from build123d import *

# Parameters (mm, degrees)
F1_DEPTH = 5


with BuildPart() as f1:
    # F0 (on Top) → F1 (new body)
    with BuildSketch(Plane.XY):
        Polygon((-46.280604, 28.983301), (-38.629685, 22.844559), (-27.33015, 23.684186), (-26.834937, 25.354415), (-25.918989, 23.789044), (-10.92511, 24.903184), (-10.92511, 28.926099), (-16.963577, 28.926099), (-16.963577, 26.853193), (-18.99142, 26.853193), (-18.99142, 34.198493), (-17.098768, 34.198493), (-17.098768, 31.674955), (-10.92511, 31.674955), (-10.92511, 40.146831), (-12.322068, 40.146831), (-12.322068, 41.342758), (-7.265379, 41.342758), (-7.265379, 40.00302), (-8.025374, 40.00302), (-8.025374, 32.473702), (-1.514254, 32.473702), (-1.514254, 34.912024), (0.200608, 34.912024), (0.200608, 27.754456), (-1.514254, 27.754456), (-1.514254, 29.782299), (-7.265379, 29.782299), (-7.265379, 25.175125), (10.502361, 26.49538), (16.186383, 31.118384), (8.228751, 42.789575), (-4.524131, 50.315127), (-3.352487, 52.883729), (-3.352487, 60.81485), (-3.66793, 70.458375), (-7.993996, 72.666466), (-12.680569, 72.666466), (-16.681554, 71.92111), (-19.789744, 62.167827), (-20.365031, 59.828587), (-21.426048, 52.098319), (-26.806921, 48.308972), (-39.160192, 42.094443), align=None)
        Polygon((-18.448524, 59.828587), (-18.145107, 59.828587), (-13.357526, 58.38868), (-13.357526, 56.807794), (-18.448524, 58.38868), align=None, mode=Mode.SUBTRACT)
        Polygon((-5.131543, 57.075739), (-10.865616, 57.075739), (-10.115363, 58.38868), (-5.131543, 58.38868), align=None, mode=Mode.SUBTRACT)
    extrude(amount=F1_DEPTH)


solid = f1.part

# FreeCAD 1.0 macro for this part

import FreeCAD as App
import Part
import Sketcher
from FreeCAD import Vector

doc = App.newDocument("Part")
params = doc.addObject("Spreadsheet::Sheet", "Params")
for row, (alias, value) in enumerate([
    ("pad1_length", "5 mm"),
], start=1):
    params.set(f"A{row}", alias)
    params.set(f"B{row}", "=" + value)
    params.setAlias(f"B{row}", alias)

body = doc.addObject("PartDesign::Body", "Body")

sketch1 = body.newObject("Sketcher::SketchObject", "Sketch")
sketch1.AttachmentSupport = (doc.getObject("XY_Plane"), [""])
sketch1.MapMode = "FlatFace"
sketch1.addGeometry([
    Part.LineSegment(Vector(-46.28, 28.98, 0), Vector(-38.63, 22.84, 0)),
    Part.LineSegment(Vector(-38.63, 22.84, 0), Vector(-27.33, 23.68, 0)),
    Part.LineSegment(Vector(-27.33, 23.68, 0), Vector(-26.83, 25.35, 0)),
    Part.LineSegment(Vector(-26.83, 25.35, 0), Vector(-25.92, 23.79, 0)),
    Part.LineSegment(Vector(-25.92, 23.79, 0), Vector(-10.93, 24.9, 0)),
    Part.LineSegment(Vector(-10.93, 24.9, 0), Vector(-10.93, 28.93, 0)),
    Part.LineSegment(Vector(-10.93, 28.93, 0), Vector(-16.96, 28.93, 0)),
    Part.LineSegment(Vector(-16.96, 28.93, 0), Vector(-16.96, 26.85, 0)),
    Part.LineSegment(Vector(-16.96, 26.85, 0), Vector(-18.99, 26.85, 0)),
    Part.LineSegment(Vector(-18.99, 26.85, 0), Vector(-18.99, 34.2, 0)),
    Part.LineSegment(Vector(-18.99, 34.2, 0), Vector(-17.1, 34.2, 0)),
    Part.LineSegment(Vector(-17.1, 34.2, 0), Vector(-17.1, 31.67, 0)),
    Part.LineSegment(Vector(-17.1, 31.67, 0), Vector(-10.93, 31.67, 0)),
    Part.LineSegment(Vector(-10.93, 31.67, 0), Vector(-10.93, 40.15, 0)),
    Part.LineSegment(Vector(-10.93, 40.15, 0), Vector(-12.32, 40.15, 0)),
    Part.LineSegment(Vector(-12.32, 40.15, 0), Vector(-12.32, 41.34, 0)),
    Part.LineSegment(Vector(-12.32, 41.34, 0), Vector(-7.27, 41.34, 0)),
    Part.LineSegment(Vector(-7.27, 41.34, 0), Vector(-7.27, 40, 0)),
    Part.LineSegment(Vector(-7.27, 40, 0), Vector(-8.03, 40, 0)),
    Part.LineSegment(Vector(-8.03, 40, 0), Vector(-8.03, 32.47, 0)),
    Part.LineSegment(Vector(-8.03, 32.47, 0), Vector(-1.51, 32.47, 0)),
    Part.LineSegment(Vector(-1.51, 32.47, 0), Vector(-1.51, 34.91, 0)),
    Part.LineSegment(Vector(-1.51, 34.91, 0), Vector(0.2, 34.91, 0)),
    Part.LineSegment(Vector(0.2, 34.91, 0), Vector(0.2, 27.75, 0)),
    Part.LineSegment(Vector(0.2, 27.75, 0), Vector(-1.51, 27.75, 0)),
    Part.LineSegment(Vector(-1.51, 27.75, 0), Vector(-1.51, 29.78, 0)),
    Part.LineSegment(Vector(-1.51, 29.78, 0), Vector(-7.27, 29.78, 0)),
    Part.LineSegment(Vector(-7.27, 29.78, 0), Vector(-7.27, 25.18, 0)),
    Part.LineSegment(Vector(-7.27, 25.18, 0), Vector(10.5, 26.5, 0)),
    Part.LineSegment(Vector(10.5, 26.5, 0), Vector(16.19, 31.12, 0)),
    Part.LineSegment(Vector(16.19, 31.12, 0), Vector(8.23, 42.79, 0)),
    Part.LineSegment(Vector(8.23, 42.79, 0), Vector(-4.52, 50.32, 0)),
    Part.LineSegment(Vector(-4.52, 50.32, 0), Vector(-3.35, 52.88, 0)),
    Part.LineSegment(Vector(-3.35, 52.88, 0), Vector(-3.35, 60.81, 0)),
    Part.LineSegment(Vector(-3.35, 60.81, 0), Vector(-3.67, 70.46, 0)),
    Part.LineSegment(Vector(-3.67, 70.46, 0), Vector(-7.99, 72.67, 0)),
    Part.LineSegment(Vector(-7.99, 72.67, 0), Vector(-12.68, 72.67, 0)),
    Part.LineSegment(Vector(-12.68, 72.67, 0), Vector(-16.68, 71.92, 0)),
    Part.LineSegment(Vector(-16.68, 71.92, 0), Vector(-19.79, 62.17, 0)),
    Part.LineSegment(Vector(-19.79, 62.17, 0), Vector(-20.37, 59.83, 0)),
    Part.LineSegment(Vector(-20.37, 59.83, 0), Vector(-21.43, 52.1, 0)),
    Part.LineSegment(Vector(-21.43, 52.1, 0), Vector(-26.81, 48.31, 0)),
    Part.LineSegment(Vector(-26.81, 48.31, 0), Vector(-39.16, 42.09, 0)),
    Part.LineSegment(Vector(-39.16, 42.09, 0), Vector(-46.28, 28.98, 0)),
    Part.LineSegment(Vector(-5.13, 58.39, 0), Vector(-5.13, 57.08, 0)),
    Part.LineSegment(Vector(-5.13, 57.08, 0), Vector(-10.87, 57.08, 0)),
    Part.LineSegment(Vector(-10.87, 57.08, 0), Vector(-10.12, 58.39, 0)),
    Part.LineSegment(Vector(-10.12, 58.39, 0), Vector(-5.13, 58.39, 0)),
    Part.LineSegment(Vector(-18.45, 58.39, 0), Vector(-18.45, 59.83, 0)),
    Part.LineSegment(Vector(-18.45, 59.83, 0), Vector(-18.15, 59.83, 0)),
    Part.LineSegment(Vector(-18.15, 59.83, 0), Vector(-13.36, 58.39, 0)),
    Part.LineSegment(Vector(-13.36, 58.39, 0), Vector(-13.36, 56.81, 0)),
    Part.LineSegment(Vector(-13.36, 56.81, 0), Vector(-18.45, 58.39, 0)),
], False)
sketch1.addConstraint([
    Sketcher.Constraint("Coincident", 0, 2, 1, 1),
    Sketcher.Constraint("Coincident", 1, 2, 2, 1),
    Sketcher.Constraint("Coincident", 2, 2, 3, 1),
    Sketcher.Constraint("Coincident", 3, 2, 4, 1),
    Sketcher.Constraint("Coincident", 4, 2, 5, 1),
    Sketcher.Constraint("Coincident", 5, 2, 6, 1),
    Sketcher.Constraint("Coincident", 6, 2, 7, 1),
    Sketcher.Constraint("Coincident", 7, 2, 8, 1),
    Sketcher.Constraint("Coincident", 8, 2, 9, 1),
    Sketcher.Constraint("Coincident", 9, 2, 10, 1),
    Sketcher.Constraint("Coincident", 10, 2, 11, 1),
    Sketcher.Constraint("Coincident", 11, 2, 12, 1),
    Sketcher.Constraint("Coincident", 12, 2, 13, 1),
    Sketcher.Constraint("Coincident", 13, 2, 14, 1),
    Sketcher.Constraint("Coincident", 14, 2, 15, 1),
    Sketcher.Constraint("Coincident", 15, 2, 16, 1),
    Sketcher.Constraint("Coincident", 16, 2, 17, 1),
    Sketcher.Constraint("Coincident", 17, 2, 18, 1),
    Sketcher.Constraint("Coincident", 18, 2, 19, 1),
    Sketcher.Constraint("Coincident", 19, 2, 20, 1),
    Sketcher.Constraint("Coincident", 20, 2, 21, 1),
    Sketcher.Constraint("Coincident", 21, 2, 22, 1),
    Sketcher.Constraint("Coincident", 22, 2, 23, 1),
    Sketcher.Constraint("Coincident", 23, 2, 24, 1),
    Sketcher.Constraint("Coincident", 24, 2, 25, 1),
    Sketcher.Constraint("Coincident", 25, 2, 26, 1),
    Sketcher.Constraint("Coincident", 26, 2, 27, 1),
    Sketcher.Constraint("Coincident", 27, 2, 28, 1),
    Sketcher.Constraint("Coincident", 28, 2, 29, 1),
    Sketcher.Constraint("Coincident", 29, 2, 30, 1),
    Sketcher.Constraint("Coincident", 30, 2, 31, 1),
    Sketcher.Constraint("Coincident", 31, 2, 32, 1),
    Sketcher.Constraint("Coincident", 32, 2, 33, 1),
    Sketcher.Constraint("Coincident", 33, 2, 34, 1),
    Sketcher.Constraint("Coincident", 34, 2, 35, 1),
    Sketcher.Constraint("Coincident", 35, 2, 36, 1),
    Sketcher.Constraint("Coincident", 36, 2, 37, 1),
    Sketcher.Constraint("Coincident", 37, 2, 38, 1),
    Sketcher.Constraint("Coincident", 38, 2, 39, 1),
    Sketcher.Constraint("Coincident", 39, 2, 40, 1),
    Sketcher.Constraint("Coincident", 40, 2, 41, 1),
    Sketcher.Constraint("Coincident", 41, 2, 42, 1),
    Sketcher.Constraint("Coincident", 42, 2, 43, 1),
    Sketcher.Constraint("Coincident", 43, 2, 0, 1),
    Sketcher.Constraint("Coincident", 44, 2, 45, 1),
    Sketcher.Constraint("Coincident", 45, 2, 46, 1),
    Sketcher.Constraint("Coincident", 46, 2, 47, 1),
    Sketcher.Constraint("Coincident", 47, 2, 44, 1),
    Sketcher.Constraint("Coincident", 48, 2, 49, 1),
    Sketcher.Constraint("Coincident", 49, 2, 50, 1),
    Sketcher.Constraint("Coincident", 50, 2, 51, 1),
    Sketcher.Constraint("Coincident", 51, 2, 52, 1),
    Sketcher.Constraint("Coincident", 52, 2, 48, 1),
    Sketcher.Constraint("Vertical", 5),
    Sketcher.Constraint("Horizontal", 6),
    Sketcher.Constraint("Vertical", 7),
    Sketcher.Constraint("Horizontal", 8),
    Sketcher.Constraint("Vertical", 9),
    Sketcher.Constraint("Horizontal", 10),
    Sketcher.Constraint("Vertical", 11),
    Sketcher.Constraint("Horizontal", 12),
    Sketcher.Constraint("Vertical", 13),
    Sketcher.Constraint("Horizontal", 14),
    Sketcher.Constraint("Vertical", 15),
    Sketcher.Constraint("Horizontal", 16),
    Sketcher.Constraint("Vertical", 17),
    Sketcher.Constraint("Horizontal", 18),
    Sketcher.Constraint("Vertical", 19),
    Sketcher.Constraint("Horizontal", 20),
    Sketcher.Constraint("Vertical", 21),
    Sketcher.Constraint("Horizontal", 22),
    Sketcher.Constraint("Vertical", 23),
    Sketcher.Constraint("Horizontal", 24),
    Sketcher.Constraint("Vertical", 25),
    Sketcher.Constraint("Horizontal", 26),
    Sketcher.Constraint("Vertical", 27),
    Sketcher.Constraint("Vertical", 33),
    Sketcher.Constraint("Horizontal", 36),
    Sketcher.Constraint("Vertical", 44),
    Sketcher.Constraint("Horizontal", 45),
    Sketcher.Constraint("Horizontal", 47),
    Sketcher.Constraint("Vertical", 48),
    Sketcher.Constraint("Horizontal", 49),
    Sketcher.Constraint("Vertical", 51),
    Sketcher.Constraint("Parallel", 1, 4),
    Sketcher.Constraint("Parallel", 4, 28),
    Sketcher.Constraint("Horizontal", 39, 2, 48, 2),
    Sketcher.Constraint("Horizontal", 47, 2, 50, 2),
    Sketcher.Constraint("Horizontal", 50, 2, 52, 2),
    Sketcher.Constraint("Vertical", 5, 2, 12, 2),
    Sketcher.Constraint("Vertical", 21, 2, 24, 2),
    Sketcher.Constraint("Vertical", 17, 2, 26, 2),
    Sketcher.Constraint("Equal", 8, 25),
    Sketcher.Constraint("DistanceY", 9, 1, 9, 2, 7.3453),
    Sketcher.Constraint("Distance", 32, 2.823201),
    Sketcher.Constraint("DistanceX", 16, 1, 16, 2, 5.056689),
    Sketcher.Constraint("DistanceX", 20, 1, 20, 2, 6.51112),
    Sketcher.Constraint("DistanceX", 47, 1, 47, 2, 4.98382),
    Sketcher.Constraint("DistanceY", 17, 2, 17, 1, 1.339738),
    Sketcher.Constraint("DistanceY", 21, 1, 21, 2, 2.438322),
    Sketcher.Constraint("DistanceY", 23, 2, 23, 1, 7.157568),
    Sketcher.Constraint("DistanceY", 33, 1, 33, 2, 7.931121),
    Sketcher.Constraint("DistanceY", 44, 2, 44, 1, 1.312941),
    Sketcher.Constraint("DistanceY", -1, 1, 5, 2, 28.926099),
    Sketcher.Constraint("DistanceY", -1, 1, 25, 2, 29.782299),
    Sketcher.Constraint("DistanceY", -1, 1, 43, 2, 28.983301),
    Sketcher.Constraint("DistanceX", 10, 2, 14, 2, 4.7767),
    Sketcher.Constraint("DistanceX", 31, 2, 34, 2, 0.856201),
    Sketcher.Constraint("DistanceY", 30, 2, 34, 2, 27.6688),
    Sketcher.Constraint("DistanceX", 41, 2, 9, 2, 7.815501),
    Sketcher.Constraint("Distance", 37, 4.06982),
    Sketcher.Constraint("Distance", 38, 10.23657),
    Sketcher.Constraint("Distance", 39, 2.408941),
    Sketcher.Constraint("Distance", 46, 1.512182),
    Sketcher.Constraint("DistanceX", 6, 2, 6, 1, 6.038467),
    Sketcher.Constraint("DistanceX", 8, 2, 8, 1, 2.027843),
    Sketcher.Constraint("DistanceX", 10, 1, 10, 2, 1.892652),
    Sketcher.Constraint("DistanceX", 18, 2, 18, 1, 0.759995),
    Sketcher.Constraint("DistanceX", 22, 1, 22, 2, 1.714862),
    Sketcher.Constraint("DistanceX", 36, 2, 36, 1, 4.686573),
    Sketcher.Constraint("DistanceX", 49, 1, 49, 2, 0.303417),
    Sketcher.Constraint("DistanceY", 5, 1, 5, 2, 4.022915),
    Sketcher.Constraint("DistanceY", 7, 2, 7, 1, 2.072906),
    Sketcher.Constraint("DistanceY", 11, 2, 11, 1, 2.523538),
    Sketcher.Constraint("DistanceY", 13, 1, 13, 2, 8.471876),
    Sketcher.Constraint("DistanceY", 15, 1, 15, 2, 1.195927),
    Sketcher.Constraint("DistanceY", 27, 2, 27, 1, 4.607174),
    Sketcher.Constraint("DistanceY", 48, 1, 48, 2, 1.439907),
    Sketcher.Constraint("DistanceY", 51, 2, 51, 1, 1.580886),
    Sketcher.Constraint("DistanceY", -1, 1, 0, 2, 22.844559),
    Sketcher.Constraint("DistanceX", 1, 2, -1, 1, 27.33015),
    Sketcher.Constraint("DistanceX", 3, 2, -1, 1, 25.918989),
    Sketcher.Constraint("DistanceX", 4, 2, -1, 1, 10.92511),
    Sketcher.Constraint("DistanceX", -1, 1, 28, 2, 10.502361),
    Sketcher.Constraint("DistanceY", -1, 1, 28, 2, 26.49538),
    Sketcher.Constraint("DistanceX", -1, 1, 30, 2, 8.228751),
    Sketcher.Constraint("DistanceX", 31, 2, -1, 1, 4.524131),
    Sketcher.Constraint("DistanceY", -1, 1, 32, 2, 52.883729),
    Sketcher.Constraint("DistanceX", 36, 2, -1, 1, 12.680569),
    Sketcher.Constraint("DistanceY", -1, 1, 37, 2, 71.92111),
    Sketcher.Constraint("DistanceX", 39, 2, -1, 1, 20.365031),
    Sketcher.Constraint("DistanceX", 40, 2, -1, 1, 21.426048),
    Sketcher.Constraint("DistanceY", -1, 1, 40, 2, 52.098319),
    Sketcher.Constraint("DistanceY", -1, 1, 41, 2, 48.308972),
    Sketcher.Constraint("DistanceY", -1, 1, 44, 2, 57.075739),
    Sketcher.Constraint("DistanceY", 1, 2, 2, 2, 1.670229),
    Sketcher.Constraint("DistanceX", 0, 2, 2, 2, 11.794748),
    Sketcher.Constraint("DistanceY", 1, 2, 3, 2, 0.104858),
    Sketcher.Constraint("DistanceX", 28, 2, 29, 2, 5.684022),
    Sketcher.Constraint("DistanceY", 29, 2, 22, 2, 3.79364),
    Sketcher.Constraint("DistanceY", 22, 2, 30, 2, 7.877551),
    Sketcher.Constraint("DistanceY", 16, 2, 31, 2, 8.972369),
    Sketcher.Constraint("DistanceY", 34, 2, 35, 2, 2.208091),
    Sketcher.Constraint("DistanceX", 42, 2, 41, 2, 12.353271),
    Sketcher.Constraint("DistanceY", 42, 2, 41, 2, 6.214529),
    Sketcher.Constraint("DistanceX", 43, 2, 0, 2, 7.650919),
    Sketcher.Constraint("DistanceX", 45, 2, 33, 2, 7.513129),
    Sketcher.Constraint("DistanceX", 38, 2, 48, 2, 1.34122),
    Sketcher.Constraint("DistanceX", 50, 2, 45, 2, 2.49191),
])
pad1 = body.newObject("PartDesign::Pad", "Pad")
pad1.Profile = sketch1
pad1.setExpression("Length", "Params.pad1_length")

doc.recompute()
